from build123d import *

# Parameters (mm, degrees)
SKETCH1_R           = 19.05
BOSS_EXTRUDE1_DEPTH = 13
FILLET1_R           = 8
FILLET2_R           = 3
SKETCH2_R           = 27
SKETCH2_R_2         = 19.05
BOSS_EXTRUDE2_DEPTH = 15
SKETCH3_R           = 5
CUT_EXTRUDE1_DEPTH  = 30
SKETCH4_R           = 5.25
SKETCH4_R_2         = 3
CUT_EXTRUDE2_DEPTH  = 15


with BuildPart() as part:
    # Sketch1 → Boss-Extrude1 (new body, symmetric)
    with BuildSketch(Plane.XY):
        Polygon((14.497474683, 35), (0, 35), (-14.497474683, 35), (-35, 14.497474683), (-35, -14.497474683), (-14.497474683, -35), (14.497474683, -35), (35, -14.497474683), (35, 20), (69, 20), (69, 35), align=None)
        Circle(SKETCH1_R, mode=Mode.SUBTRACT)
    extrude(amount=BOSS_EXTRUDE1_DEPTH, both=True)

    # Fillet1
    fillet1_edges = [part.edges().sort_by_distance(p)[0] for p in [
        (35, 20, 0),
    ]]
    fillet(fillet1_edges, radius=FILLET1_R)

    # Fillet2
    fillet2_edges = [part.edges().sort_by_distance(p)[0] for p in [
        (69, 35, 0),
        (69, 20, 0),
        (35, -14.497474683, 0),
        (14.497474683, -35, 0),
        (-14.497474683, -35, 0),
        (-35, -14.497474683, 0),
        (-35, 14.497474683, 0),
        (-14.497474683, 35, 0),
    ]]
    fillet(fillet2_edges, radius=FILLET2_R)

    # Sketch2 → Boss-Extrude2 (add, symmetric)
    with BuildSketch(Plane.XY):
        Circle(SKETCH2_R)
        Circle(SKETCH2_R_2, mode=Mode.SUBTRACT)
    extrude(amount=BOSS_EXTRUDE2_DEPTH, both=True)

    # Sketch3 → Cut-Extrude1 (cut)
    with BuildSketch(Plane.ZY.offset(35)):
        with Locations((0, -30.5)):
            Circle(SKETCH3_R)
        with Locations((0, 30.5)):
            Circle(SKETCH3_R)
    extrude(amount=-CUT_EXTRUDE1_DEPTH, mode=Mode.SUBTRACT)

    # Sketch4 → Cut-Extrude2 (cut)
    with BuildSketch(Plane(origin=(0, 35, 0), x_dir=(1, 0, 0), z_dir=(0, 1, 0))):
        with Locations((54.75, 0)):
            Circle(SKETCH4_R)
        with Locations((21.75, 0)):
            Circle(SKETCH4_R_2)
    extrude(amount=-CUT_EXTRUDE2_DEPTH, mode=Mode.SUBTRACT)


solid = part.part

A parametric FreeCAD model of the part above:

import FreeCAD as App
import Part
import Sketcher


def edges_at(feature, points):
    """Names of the edges that pass closest to the given points."""
    edges = feature.Shape.Edges
    near = lambda p: min(range(len(edges)), key=lambda i: edges[i].distToShape(Part.Vertex(*p))[0])
    return sorted({f"Edge{near(p) + 1}" for p in points})

doc = App.newDocument("Part")
params = doc.addObject("Spreadsheet::Sheet", "Params")
for row, (alias, value) in enumerate([
    ("sketch1_diameter", "38.1 mm"),
    ("sketch1_width", "34 mm"),
    ("sketch1_height", "15 mm"),
    ("pad1_length", "26 mm"),
    ("fillet_radius", "8 mm"),
    ("fillet2_radius", "3 mm"),
    ("sketch2_diameter", "54 mm"),
    ("sketch2_diameter2", "38.1 mm"),
    ("pad2_length", "30 mm"),
    ("sketch3_diameter", "10 mm"),
    ("pocket1_length", "30 mm"),
    ("sketch4_diameter", "6 mm"),
    ("sketch4_diameter2", "10.5 mm"),
    ("pocket2_length", "15 mm"),
], start=1):
    params.set(f"A{row}", alias)
    params.set(f"B{row}", "=" + value)
    params.setAlias(f"B{row}", alias)

body = doc.addObject("PartDesign::Body", "Body")

# Sketch on XY plane
sketch1 = body.newObject("Sketcher::SketchObject", "Sketch")
sketch1.AttachmentSupport = (doc.getObject("XY_Plane"), [""])
sketch1.MapMode = "FlatFace"
sketch1.addGeometry([
    Part.LineSegment(App.Vector(-14, 35, 0), App.Vector(-35, 14, 0)),  # 0
    Part.LineSegment(App.Vector(-35, 14, 0), App.Vector(-35, -14, 0)),  # 1
    Part.LineSegment(App.Vector(-35, -14, 0), App.Vector(-14, -35, 0)),  # 2
    Part.LineSegment(App.Vector(-14, -35, 0), App.Vector(14, -35, 0)),  # 3
    Part.LineSegment(App.Vector(14, -35, 0), App.Vector(35, -14, 0)),  # 4
    Part.LineSegment(App.Vector(35, -14, 0), App.Vector(35, 20, 0)),  # 5
    Part.LineSegment(App.Vector(35, 20, 0), App.Vector(69, 20, 0)),  # 6
    Part.LineSegment(App.Vector(69, 20, 0), App.Vector(69, 35, 0)),  # 7
    Part.LineSegment(App.Vector(69, 35, 0), App.Vector(-14, 35, 0)),  # 8
    Part.Circle(App.Vector(0, 0, 0), App.Vector(0, 0, 1), 19),  # 9
], False)
sketch1.addConstraint([
    Sketcher.Constraint("Coincident", 0, 2, 1, 1),
    Sketcher.Constraint("Coincident", 1, 2, 2, 1),
    Sketcher.Constraint("Coincident", 2, 2, 3, 1),
    Sketcher.Constraint("Coincident", 3, 2, 4, 1),
    Sketcher.Constraint("Coincident", 4, 2, 5, 1),
    Sketcher.Constraint("Coincident", 5, 2, 6, 1),
    Sketcher.Constraint("Coincident", 6, 2, 7, 1),
    Sketcher.Constraint("Coincident", 7, 2, 8, 1),
    Sketcher.Constraint("Coincident", 8, 2, 0, 1),
    Sketcher.Constraint("Vertical", 1),
    Sketcher.Constraint("Horizontal", 3),
    Sketcher.Constraint("Vertical", 5),
    Sketcher.Constraint("Horizontal", 6),
    Sketcher.Constraint("Vertical", 7),
    Sketcher.Constraint("Horizontal", 8),
    Sketcher.Constraint("Coincident", 9, 3, -1, 1),
    Sketcher.Constraint("Symmetric", 0, 2, 4, 2, -1, 1),
    Sketcher.Constraint("Symmetric", 3, 2, 8, 2, -1, 1),
    Sketcher.Constraint("Perpendicular", 0, 2),
    Sketcher.Constraint("Horizontal", 1, 2, 4, 2),
    Sketcher.Constraint("Vertical", 2, 2, 8, 2),
    Sketcher.Constraint("Equal", 3, 1),
    Sketcher.Constraint("Diameter", 9, 38.1),
    Sketcher.Constraint("DistanceX", 6, 1, 6, 2, 34.0),
    Sketcher.Constraint("DistanceY", 7, 1, 7, 2, 15.0),
    Sketcher.Constraint("DistanceX", 0, 2, -1, 1, 35.0),
    Sketcher.Constraint("DistanceX", 3, 1, 3, 2, 28.994949),
])
sketch1.setExpression("Constraints[22]", "Params.sketch1_diameter")
sketch1.setExpression("Constraints[23]", "Params.sketch1_width")
sketch1.setExpression("Constraints[24]", "Params.sketch1_height")
pad1 = body.newObject("PartDesign::Pad", "Pad")
pad1.Profile = sketch1
pad1.setExpression("Length", "Params.pad1_length")
pad1.Midplane = True
doc.recompute()

fillet = body.newObject("PartDesign::Fillet", "Fillet")
fillet.Base = (pad1, edges_at(pad1, [(35, 20, 0)]))
fillet.setExpression("Radius", "Params.fillet_radius")
doc.recompute()

fillet2 = body.newObject("PartDesign::Fillet", "Fillet001")
fillet2.Base = (fillet, edges_at(fillet, [
    (69, 35, 0),
    (69, 20, 0),
    (35, -14.497, 0),
    (14.497, -35, 0),
    (-14.497, -35, 0),
    (-35, -14.497, 0),
    (-35, 14.497, 0),
    (-14.497, 35, 0),
]))
fillet2.setExpression("Radius", "Params.fillet2_radius")

# Sketch on XY plane
sketch2 = body.newObject("Sketcher::SketchObject", "Sketch001")
sketch2.AttachmentSupport = (doc.getObject("XY_Plane"), [""])
sketch2.MapMode = "FlatFace"
sketch2.addGeometry([
    Part.Circle(App.Vector(0, 0, 0), App.Vector(0, 0, 1), 27),
    Part.Circle(App.Vector(0, 0, 0), App.Vector(0, 0, 1), 19),
], False)
sketch2.addConstraint([
    Sketcher.Constraint("Coincident", 0, 3, -1, 1),
    Sketcher.Constraint("Coincident", 1, 3, -1, 1),
    Sketcher.Constraint("Diameter", 0, 54.0),
    Sketcher.Constraint("Diameter", 1, 38.1),
])
sketch2.setExpression("Constraints[2]", "Params.sketch2_diameter")
sketch2.setExpression("Constraints[3]", "Params.sketch2_diameter2")
pad2 = body.newObject("PartDesign::Pad", "Pad001")
pad2.Profile = sketch2
pad2.setExpression("Length", "Params.pad2_length")
pad2.Midplane = True

# Sketch on YZ plane
sketch3 = body.newObject("Sketcher::SketchObject", "Sketch002")
sketch3.AttachmentSupport = (doc.getObject("YZ_Plane"), [""])
sketch3.MapMode = "FlatFace"
sketch3.AttachmentOffset = App.Placement(App.Vector(0, 0, -35), App.Rotation())
sketch3.addGeometry([
    Part.Circle(App.Vector(-30, 0, 0), App.Vector(0, 0, 1), 5),
    Part.Circle(App.Vector(30, 0, 0), App.Vector(0, 0, 1), 5),
], False)
sketch3.addConstraint([
    Sketcher.Constraint("Equal", 0, 1),
    Sketcher.Constraint("Symmetric", 0, 3, 1, 3, -1, 1),
    Sketcher.Constraint("PointOnObject", 0, 3, -1),
    Sketcher.Constraint("Diameter", 0, 10.0),
    Sketcher.Constraint("DistanceX", 0, 3, 1, 3, 61.0),
])
sketch3.setExpression("Constraints[3]", "Params.sketch3_diameter")
pocket1 = body.newObject("PartDesign::Pocket", "Pocket")
pocket1.Profile = sketch3
pocket1.setExpression("Length", "Params.pocket1_length")
pocket1.Reversed = True

# Sketch on XZ plane
sketch4 = body.newObject("Sketcher::SketchObject", "Sketch003")
sketch4.AttachmentSupport = (doc.getObject("XZ_Plane"), [""])
sketch4.MapMode = "FlatFace"
sketch4.AttachmentOffset = App.Placement(App.Vector(0, 0, -35), App.Rotation())
sketch4.addGeometry([
    Part.Circle(App.Vector(54.8, 0, 0), App.Vector(0, 0, 1), 5.2),
    Part.Circle(App.Vector(21.8, 0, 0), App.Vector(0, 0, 1), 3),
], False)
sketch4.addConstraint([
    Sketcher.Constraint("PointOnObject", 0, 3, -1),
    Sketcher.Constraint("PointOnObject", 1, 3, -1),
    Sketcher.Constraint("Diameter", 1, 6.0),
    Sketcher.Constraint("Diameter", 0, 10.5),
    Sketcher.Constraint("DistanceX", 1, 3, 0, 3, 33.0),
    Sketcher.Constraint("DistanceX", -1, 1, 0, 3, 54.75),
])
sketch4.setExpression("Constraints[2]", "Params.sketch4_diameter")
sketch4.setExpression("Constraints[3]", "Params.sketch4_diameter2")
pocket2 = body.newObject("PartDesign::Pocket", "Pocket001")
pocket2.Profile = sketch4
pocket2.setExpression("Length", "Params.pocket2_length")
pocket2.Reversed = True

doc.recompute()
